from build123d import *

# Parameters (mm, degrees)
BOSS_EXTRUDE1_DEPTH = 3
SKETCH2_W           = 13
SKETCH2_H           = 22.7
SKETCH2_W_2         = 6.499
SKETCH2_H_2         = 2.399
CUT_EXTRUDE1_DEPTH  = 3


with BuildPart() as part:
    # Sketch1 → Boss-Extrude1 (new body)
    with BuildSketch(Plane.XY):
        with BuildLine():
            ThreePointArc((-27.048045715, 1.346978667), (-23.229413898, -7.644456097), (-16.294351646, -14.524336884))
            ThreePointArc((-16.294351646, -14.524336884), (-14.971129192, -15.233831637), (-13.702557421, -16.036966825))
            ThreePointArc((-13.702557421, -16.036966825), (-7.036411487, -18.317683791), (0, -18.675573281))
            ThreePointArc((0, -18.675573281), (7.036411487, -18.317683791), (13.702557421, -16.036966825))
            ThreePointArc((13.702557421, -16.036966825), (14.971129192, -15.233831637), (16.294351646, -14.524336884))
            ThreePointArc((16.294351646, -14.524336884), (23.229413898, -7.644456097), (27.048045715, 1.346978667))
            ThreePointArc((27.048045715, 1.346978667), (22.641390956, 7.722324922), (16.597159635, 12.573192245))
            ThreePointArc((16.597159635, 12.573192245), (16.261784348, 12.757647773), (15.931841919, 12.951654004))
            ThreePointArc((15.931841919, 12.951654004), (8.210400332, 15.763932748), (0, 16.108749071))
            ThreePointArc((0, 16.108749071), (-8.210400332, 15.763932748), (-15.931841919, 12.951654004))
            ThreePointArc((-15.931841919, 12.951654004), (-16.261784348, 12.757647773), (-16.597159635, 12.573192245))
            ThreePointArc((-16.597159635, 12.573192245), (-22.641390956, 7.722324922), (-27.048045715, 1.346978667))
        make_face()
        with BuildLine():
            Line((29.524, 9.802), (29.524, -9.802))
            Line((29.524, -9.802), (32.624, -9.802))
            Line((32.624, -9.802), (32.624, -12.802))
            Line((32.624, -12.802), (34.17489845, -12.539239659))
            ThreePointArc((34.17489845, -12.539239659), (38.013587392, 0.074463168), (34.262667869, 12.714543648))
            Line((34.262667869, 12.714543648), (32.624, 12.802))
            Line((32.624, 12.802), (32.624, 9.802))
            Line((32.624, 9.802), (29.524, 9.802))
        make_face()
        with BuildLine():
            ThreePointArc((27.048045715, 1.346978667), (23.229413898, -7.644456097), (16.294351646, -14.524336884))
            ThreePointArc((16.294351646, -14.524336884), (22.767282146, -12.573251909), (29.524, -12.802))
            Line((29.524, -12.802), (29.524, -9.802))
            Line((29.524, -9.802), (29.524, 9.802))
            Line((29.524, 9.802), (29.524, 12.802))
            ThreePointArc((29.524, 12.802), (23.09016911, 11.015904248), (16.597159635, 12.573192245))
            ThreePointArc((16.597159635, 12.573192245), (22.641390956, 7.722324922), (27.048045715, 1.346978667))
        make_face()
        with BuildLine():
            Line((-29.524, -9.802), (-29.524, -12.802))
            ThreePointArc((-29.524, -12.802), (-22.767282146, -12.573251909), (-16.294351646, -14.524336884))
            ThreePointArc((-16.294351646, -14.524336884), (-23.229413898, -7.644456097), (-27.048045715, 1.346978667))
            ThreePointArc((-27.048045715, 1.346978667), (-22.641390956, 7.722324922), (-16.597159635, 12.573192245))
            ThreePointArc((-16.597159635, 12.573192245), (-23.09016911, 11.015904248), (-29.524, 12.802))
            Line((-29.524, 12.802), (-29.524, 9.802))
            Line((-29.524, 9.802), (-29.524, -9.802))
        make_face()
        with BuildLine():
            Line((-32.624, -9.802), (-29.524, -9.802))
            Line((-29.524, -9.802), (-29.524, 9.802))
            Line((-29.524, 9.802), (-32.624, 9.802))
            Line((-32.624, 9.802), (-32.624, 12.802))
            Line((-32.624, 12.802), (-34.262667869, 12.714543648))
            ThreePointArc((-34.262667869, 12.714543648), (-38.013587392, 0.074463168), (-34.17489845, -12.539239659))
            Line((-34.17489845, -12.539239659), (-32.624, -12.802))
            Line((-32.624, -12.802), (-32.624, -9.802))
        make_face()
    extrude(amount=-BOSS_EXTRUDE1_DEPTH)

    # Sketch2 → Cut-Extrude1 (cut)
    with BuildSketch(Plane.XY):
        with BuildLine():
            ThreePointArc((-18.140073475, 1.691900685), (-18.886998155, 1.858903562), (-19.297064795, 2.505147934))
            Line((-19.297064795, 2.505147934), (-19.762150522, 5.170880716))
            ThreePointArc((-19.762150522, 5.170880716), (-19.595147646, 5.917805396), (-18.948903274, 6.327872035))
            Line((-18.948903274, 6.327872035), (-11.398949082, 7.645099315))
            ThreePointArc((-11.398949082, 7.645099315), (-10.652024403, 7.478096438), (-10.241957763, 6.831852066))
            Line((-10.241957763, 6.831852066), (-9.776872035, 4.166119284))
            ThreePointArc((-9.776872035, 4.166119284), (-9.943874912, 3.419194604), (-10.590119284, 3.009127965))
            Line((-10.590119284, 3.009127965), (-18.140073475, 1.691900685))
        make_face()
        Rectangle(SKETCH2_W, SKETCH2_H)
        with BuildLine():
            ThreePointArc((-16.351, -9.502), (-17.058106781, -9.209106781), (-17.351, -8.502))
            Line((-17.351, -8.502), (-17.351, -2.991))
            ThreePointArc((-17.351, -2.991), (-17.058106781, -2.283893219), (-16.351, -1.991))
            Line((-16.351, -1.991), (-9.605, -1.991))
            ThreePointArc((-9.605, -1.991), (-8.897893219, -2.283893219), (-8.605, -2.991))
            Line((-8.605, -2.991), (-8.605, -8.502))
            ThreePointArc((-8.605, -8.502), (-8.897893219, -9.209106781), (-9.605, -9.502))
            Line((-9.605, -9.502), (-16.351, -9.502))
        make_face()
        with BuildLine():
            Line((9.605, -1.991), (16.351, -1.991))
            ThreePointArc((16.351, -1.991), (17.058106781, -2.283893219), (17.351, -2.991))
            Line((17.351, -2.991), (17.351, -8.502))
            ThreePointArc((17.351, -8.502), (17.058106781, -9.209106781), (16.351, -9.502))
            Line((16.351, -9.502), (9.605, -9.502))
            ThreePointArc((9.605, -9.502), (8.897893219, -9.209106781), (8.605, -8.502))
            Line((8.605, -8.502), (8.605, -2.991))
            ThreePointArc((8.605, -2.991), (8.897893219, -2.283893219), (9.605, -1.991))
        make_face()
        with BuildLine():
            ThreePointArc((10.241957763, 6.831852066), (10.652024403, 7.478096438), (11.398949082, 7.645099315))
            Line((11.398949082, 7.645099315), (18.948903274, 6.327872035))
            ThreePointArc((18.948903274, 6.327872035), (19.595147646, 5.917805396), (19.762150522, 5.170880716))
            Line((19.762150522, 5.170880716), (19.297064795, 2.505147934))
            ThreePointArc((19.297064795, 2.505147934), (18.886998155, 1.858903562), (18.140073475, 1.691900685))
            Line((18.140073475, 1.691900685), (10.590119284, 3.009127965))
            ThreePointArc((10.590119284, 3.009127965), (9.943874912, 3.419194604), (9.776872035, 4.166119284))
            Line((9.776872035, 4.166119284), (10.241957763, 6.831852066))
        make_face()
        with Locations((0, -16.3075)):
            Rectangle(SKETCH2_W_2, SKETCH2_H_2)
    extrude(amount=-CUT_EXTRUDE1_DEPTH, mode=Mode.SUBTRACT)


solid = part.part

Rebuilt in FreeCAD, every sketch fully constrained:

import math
import FreeCAD as App
import Part
import Sketcher

doc = App.newDocument("Part")
body = doc.addObject("PartDesign::Body", "Body")

sketch1 = doc.addObject("Sketcher::SketchObject", "Sketch")
body.addObject(sketch1)
sketch1.AttachmentSupport = (doc.XY_Plane, [""])
sketch1.MapMode = "FlatFace"
sketch1.addGeometry([
    Part.ArcOfCircle(Part.Circle(App.Vector(-25.5, -33.2, 0), App.Vector(0, 0, 1), 20.8), math.radians(55.59), math.radians(63.87)),
    Part.ArcOfCircle(Part.Circle(App.Vector(-2.2, 6.6, 0), App.Vector(0, 0, 1), 25.3), math.radians(-117), math.radians(-85)),
    Part.ArcOfCircle(Part.Circle(App.Vector(2.2, 6.6, 0), App.Vector(0, 0, 1), 25.3), math.radians(-95), math.radians(-63)),
    Part.ArcOfCircle(Part.Circle(App.Vector(25.5, -33.2, 0), App.Vector(0, 0, 1), 20.8), math.radians(116.13), math.radians(124.41)),
    Part.ArcOfCircle(Part.Circle(App.Vector(25.5, -33.2, 0), App.Vector(0, 0, 1), 20.8), math.radians(79), math.radians(116)),
    Part.LineSegment(App.Vector(29.5, -12.8, 0), App.Vector(29.5, -9.8, 0)),
    Part.LineSegment(App.Vector(29.5, -9.8, 0), App.Vector(32.6, -9.8, 0)),
    Part.LineSegment(App.Vector(32.6, -9.8, 0), App.Vector(32.6, -12.8, 0)),
    Part.LineSegment(App.Vector(32.6, -12.8, 0), App.Vector(34.2, -12.5, 0)),
    Part.ArcOfCircle(Part.Circle(App.Vector(15.1, 0.2, 0), App.Vector(0, 0, 1), 22.9), math.radians(-34), math.radians(33)),
    Part.LineSegment(App.Vector(34.3, 12.7, 0), App.Vector(32.6, 12.8, 0)),
    Part.LineSegment(App.Vector(32.6, 12.8, 0), App.Vector(32.6, 9.8, 0)),
    Part.LineSegment(App.Vector(32.6, 9.8, 0), App.Vector(29.5, 9.8, 0)),
    Part.LineSegment(App.Vector(29.5, 9.8, 0), App.Vector(29.5, 12.8, 0)),
    Part.ArcOfCircle(Part.Circle(App.Vector(22.9, 24.3, 0), App.Vector(0, 0, 1), 13.3), math.radians(-118), math.radians(-60)),
    Part.ArcOfCircle(Part.Circle(App.Vector(22.9, 24.3, 0), App.Vector(0, 0, 1), 13.3), math.radians(-121.28), math.radians(-117.99)),
    Part.ArcOfCircle(Part.Circle(App.Vector(3, -10.6, 0), App.Vector(0, 0, 1), 26.8), math.radians(61), math.radians(96)),
    Part.ArcOfCircle(Part.Circle(App.Vector(-3, -10.6, 0), App.Vector(0, 0, 1), 26.8), math.radians(84), math.radians(119)),
    Part.ArcOfCircle(Part.Circle(App.Vector(-22.9, 24.3, 0), App.Vector(0, 0, 1), 13.3), math.radians(-62.01), math.radians(-58.72)),
    Part.ArcOfCircle(Part.Circle(App.Vector(-22.9, 24.3, 0), App.Vector(0, 0, 1), 13.3), math.radians(-120), math.radians(-62)),
    Part.LineSegment(App.Vector(-29.5, 12.8, 0), App.Vector(-29.5, 9.8, 0)),
    Part.LineSegment(App.Vector(-29.5, 9.8, 0), App.Vector(-32.6, 9.8, 0)),
    Part.LineSegment(App.Vector(-32.6, 9.8, 0), App.Vector(-32.6, 12.8, 0)),
    Part.LineSegment(App.Vector(-32.6, 12.8, 0), App.Vector(-34.3, 12.7, 0)),
    Part.ArcOfCircle(Part.Circle(App.Vector(-15.1, 0.2, 0), App.Vector(0, 0, 1), 22.9), math.radians(147), math.radians(214)),
    Part.LineSegment(App.Vector(-34.2, -12.5, 0), App.Vector(-32.6, -12.8, 0)),
    Part.LineSegment(App.Vector(-32.6, -12.8, 0), App.Vector(-32.6, -9.8, 0)),
    Part.LineSegment(App.Vector(-32.6, -9.8, 0), App.Vector(-29.5, -9.8, 0)),
    Part.LineSegment(App.Vector(-29.5, -9.8, 0), App.Vector(-29.5, -12.8, 0)),
    Part.ArcOfCircle(Part.Circle(App.Vector(-25.5, -33.2, 0), App.Vector(0, 0, 1), 20.8), math.radians(64), math.radians(101)),
], False)
sketch1.addConstraint([
    Sketcher.Constraint("Coincident", 0, 1, 1, 1),
    Sketcher.Constraint("Coincident", 1, 2, 2, 1),
    Sketcher.Constraint("Coincident", 2, 2, 3, 2),
    Sketcher.Constraint("Tangent", 3, 1, 4, 2),
    Sketcher.Constraint("Coincident", 4, 1, 5, 1),
    Sketcher.Constraint("Coincident", 5, 2, 6, 1),
    Sketcher.Constraint("Coincident", 6, 2, 7, 1),
    Sketcher.Constraint("Coincident", 7, 2, 8, 1),
    Sketcher.Constraint("Coincident", 8, 2, 9, 1),
    Sketcher.Constraint("Coincident", 9, 2, 10, 1),
    Sketcher.Constraint("Coincident", 10, 2, 11, 1),
    Sketcher.Constraint("Coincident", 11, 2, 12, 1),
    Sketcher.Constraint("Coincident", 12, 2, 13, 1),
    Sketcher.Constraint("Coincident", 13, 2, 14, 2),
    Sketcher.Constraint("Tangent", 14, 1, 15, 2),
    Sketcher.Constraint("Coincident", 15, 1, 16, 1),
    Sketcher.Constraint("Coincident", 16, 2, 17, 1),
    Sketcher.Constraint("Coincident", 17, 2, 18, 2),
    Sketcher.Constraint("Tangent", 18, 1, 19, 2),
    Sketcher.Constraint("Coincident", 19, 1, 20, 1),
    Sketcher.Constraint("Coincident", 20, 2, 21, 1),
    Sketcher.Constraint("Coincident", 21, 2, 22, 1),
    Sketcher.Constraint("Coincident", 22, 2, 23, 1),
    Sketcher.Constraint("Coincident", 23, 2, 24, 1),
    Sketcher.Constraint("Coincident", 24, 2, 25, 1),
    Sketcher.Constraint("Coincident", 25, 2, 26, 1),
    Sketcher.Constraint("Coincident", 26, 2, 27, 1),
    Sketcher.Constraint("Coincident", 27, 2, 28, 1),
    Sketcher.Constraint("Coincident", 28, 2, 29, 2),
    Sketcher.Constraint("Tangent", 29, 1, 0, 2),
    Sketcher.Constraint("Vertical", 5),
    Sketcher.Constraint("Horizontal", 6),
    Sketcher.Constraint("Vertical", 7),
    Sketcher.Constraint("Vertical", 11),
    Sketcher.Constraint("Horizontal", 12),
    Sketcher.Constraint("Vertical", 13),
    Sketcher.Constraint("Vertical", 20),
    Sketcher.Constraint("Horizontal", 21),
    Sketcher.Constraint("Vertical", 22),
    Sketcher.Constraint("Vertical", 26),
    Sketcher.Constraint("Horizontal", 27),
    Sketcher.Constraint("Vertical", 28),
    Sketcher.Constraint("Equal", 1, 2),
    Sketcher.Constraint("Equal", 0, 3),
    Sketcher.Constraint("Equal", 3, 4),
    Sketcher.Constraint("Equal", 14, 15),
    Sketcher.Constraint("Equal", 16, 17),
    Sketcher.Constraint("Equal", 15, 18),
    Sketcher.Constraint("Equal", 18, 19),
    Sketcher.Constraint("Equal", 9, 24),
    Sketcher.Constraint("Equal", 4, 29),
    Sketcher.Constraint("Symmetric", 4, 1, 19, 1, -1, 1),
    Sketcher.Constraint("Symmetric", 6, 2, 21, 2, -1, 1),
    Sketcher.Constraint("Symmetric", 10, 2, 25, 2, -1, 1),
    Sketcher.Constraint("Symmetric", 12, 2, 27, 2, -1, 1),
    Sketcher.Constraint("Symmetric", 1, 3, 2, 3, -2),
    Sketcher.Constraint("Symmetric", 0, 3, 3, 3, -2),
    Sketcher.Constraint("Symmetric", 16, 3, 17, 3, -2),
    Sketcher.Constraint("Symmetric", 14, 3, 18, 3, -2),
    Sketcher.Constraint("Symmetric", 9, 3, 24, 3, -2),
    Sketcher.Constraint("Symmetric", 12, 2, 20, 2, -2),
    Sketcher.Constraint("Symmetric", 10, 2, 22, 2, -2),
    Sketcher.Constraint("Horizontal", 4, 1, 7, 2),
    Sketcher.Constraint("Horizontal", 10, 2, 13, 2),
    Sketcher.Constraint("Horizontal", 14, 1, 18, 1),
    Sketcher.Constraint("Horizontal", 9, 2, 23, 2),
    Sketcher.Constraint("Horizontal", 8, 2, 24, 2),
    Sketcher.Constraint("Horizontal", 3, 1, 29, 1),
    Sketcher.Constraint("DistanceY", 5, 1, 5, 2, 3.0),
    Sketcher.Constraint("Radius", 1, 25.35),
    Sketcher.Constraint("DistanceX", 6, 1, 6, 2, 3.1),
    Sketcher.Constraint("Radius", 0, 20.792),
    Sketcher.Constraint("Radius", 9, 22.905),
    Sketcher.Constraint("Radius", 14, 13.333),
    Sketcher.Constraint("Radius", 16, 26.846),
    Sketcher.Constraint("DistanceY", 16, 3, -1, 1, 10.57),
    Sketcher.Constraint("Distance", 8, 1.573),
    Sketcher.Constraint("Distance", 10, 1.641),
    Sketcher.Constraint("DistanceX", 1, 3, -1, 1, 2.243),
    Sketcher.Constraint("DistanceY", -1, 1, 1, 3, 6.575),
    Sketcher.Constraint("DistanceX", -1, 1, 16, 3, 2.992),
    Sketcher.Constraint("DistanceX", -1, 1, 4, 1, 29.524),
    Sketcher.Constraint("DistanceY", 4, 1, -1, 1, 12.802),
    Sketcher.Constraint("DistanceX", -1, 1, 8, 2, 34.174898),
    Sketcher.Constraint("DistanceY", 0, 3, -1, 1, 33.191261),
    Sketcher.Constraint("DistanceY", -1, 1, 9, 3, 0.154069),
    Sketcher.Constraint("DistanceX", -1, 1, 14, 3, 22.854209),
    Sketcher.Constraint("DistanceX", -1, 1, 3, 1, 16.294352),
    Sketcher.Constraint("DistanceX", -1, 1, 14, 1, 16.59716),
])
pad1 = doc.addObject("PartDesign::Pad", "Pad")
body.addObject(pad1)
pad1.Profile = sketch1
pad1.Length = 3
pad1.Reversed = True

sketch2 = doc.addObject("Sketcher::SketchObject", "Sketch001")
body.addObject(sketch2)
sketch2.AttachmentSupport = (doc.XY_Plane, [""])
sketch2.MapMode = "FlatFace"
sketch2.addGeometry([
    Part.ArcOfCircle(Part.Circle(App.Vector(-18.3, 2.7, 0), App.Vector(0, 0, 1), 1), math.radians(-170), math.radians(-80)),
    Part.LineSegment(App.Vector(-18.1, 1.7, 0), App.Vector(-10.6, 3, 0)),
    Part.ArcOfCircle(Part.Circle(App.Vector(-10.8, 4, 0), App.Vector(0, 0, 1), 1), math.radians(-80), math.radians(10)),
    Part.LineSegment(App.Vector(-9.8, 4.2, 0), App.Vector(-10.2, 6.8, 0)),
    Part.ArcOfCircle(Part.Circle(App.Vector(-11.2, 6.7, 0), App.Vector(0, 0, 1), 1), math.radians(10), math.radians(100)),
    Part.LineSegment(App.Vector(-11.4, 7.6, 0), App.Vector(-18.9, 6.3, 0)),
    Part.ArcOfCircle(Part.Circle(App.Vector(-18.8, 5.3, 0), App.Vector(0, 0, 1), 1), math.radians(100), math.radians(190)),
    Part.LineSegment(App.Vector(-19.8, 5.2, 0), App.Vector(-19.3, 2.5, 0)),
    Part.LineSegment(App.Vector(-6.5, 11.3, 0), App.Vector(-6.5, -11.3, 0)),
    Part.LineSegment(App.Vector(-6.5, -11.3, 0), App.Vector(6.5, -11.3, 0)),
    Part.LineSegment(App.Vector(6.5, -11.3, 0), App.Vector(6.5, 11.3, 0)),
    Part.LineSegment(App.Vector(6.5, 11.3, 0), App.Vector(-6.5, 11.3, 0)),
    Part.ArcOfCircle(Part.Circle(App.Vector(-16.4, -8.5, 0), App.Vector(0, 0, 1), 1), math.radians(-180), math.radians(-90)),
    Part.LineSegment(App.Vector(-16.4, -9.5, 0), App.Vector(-9.6, -9.5, 0)),
    Part.ArcOfCircle(Part.Circle(App.Vector(-9.6, -8.5, 0), App.Vector(0, 0, 1), 1), math.radians(-90), math.radians(0)),
    Part.LineSegment(App.Vector(-8.6, -8.5, 0), App.Vector(-8.6, -3, 0)),
    Part.ArcOfCircle(Part.Circle(App.Vector(-9.6, -3, 0), App.Vector(0, 0, 1), 1), math.radians(0), math.radians(90)),
    Part.LineSegment(App.Vector(-9.6, -2, 0), App.Vector(-16.4, -2, 0)),
    Part.ArcOfCircle(Part.Circle(App.Vector(-16.4, -3, 0), App.Vector(0, 0, 1), 1), math.radians(90), math.radians(180)),
    Part.LineSegment(App.Vector(-17.4, -3, 0), App.Vector(-17.4, -8.5, 0)),
    Part.LineSegment(App.Vector(16.4, -2, 0), App.Vector(9.6, -2, 0)),
    Part.ArcOfCircle(Part.Circle(App.Vector(9.6, -3, 0), App.Vector(0, 0, 1), 1), math.radians(90), math.radians(180)),
    Part.LineSegment(App.Vector(8.6, -3, 0), App.Vector(8.6, -8.5, 0)),
    Part.ArcOfCircle(Part.Circle(App.Vector(9.6, -8.5, 0), App.Vector(0, 0, 1), 1), math.radians(-180), math.radians(-90)),
    Part.LineSegment(App.Vector(9.6, -9.5, 0), App.Vector(16.4, -9.5, 0)),
    Part.ArcOfCircle(Part.Circle(App.Vector(16.4, -8.5, 0), App.Vector(0, 0, 1), 1), math.radians(-90), math.radians(0)),
    Part.LineSegment(App.Vector(17.4, -8.5, 0), App.Vector(17.4, -3, 0)),
    Part.ArcOfCircle(Part.Circle(App.Vector(16.4, -3, 0), App.Vector(0, 0, 1), 1), math.radians(0), math.radians(90)),
    Part.ArcOfCircle(Part.Circle(App.Vector(11.2, 6.7, 0), App.Vector(0, 0, 1), 1), math.radians(80), math.radians(170)),
    Part.LineSegment(App.Vector(10.2, 6.8, 0), App.Vector(9.8, 4.2, 0)),
    Part.ArcOfCircle(Part.Circle(App.Vector(10.8, 4, 0), App.Vector(0, 0, 1), 1), math.radians(170), math.radians(260)),
    Part.LineSegment(App.Vector(10.6, 3, 0), App.Vector(18.1, 1.7, 0)),
    Part.ArcOfCircle(Part.Circle(App.Vector(18.3, 2.7, 0), App.Vector(0, 0, 1), 1), math.radians(-100), math.radians(-10)),
    Part.LineSegment(App.Vector(19.3, 2.5, 0), App.Vector(19.8, 5.2, 0)),
    Part.ArcOfCircle(Part.Circle(App.Vector(18.8, 5.3, 0), App.Vector(0, 0, 1), 1), math.radians(-10), math.radians(80)),
    Part.LineSegment(App.Vector(18.9, 6.3, 0), App.Vector(11.4, 7.6, 0)),
    Part.LineSegment(App.Vector(-3.2, -15.1, 0), App.Vector(-3.2, -17.5, 0)),
    Part.LineSegment(App.Vector(-3.2, -17.5, 0), App.Vector(3.2, -17.5, 0)),
    Part.LineSegment(App.Vector(3.2, -17.5, 0), App.Vector(3.2, -15.1, 0)),
    Part.LineSegment(App.Vector(3.2, -15.1, 0), App.Vector(-3.2, -15.1, 0)),
], False)
sketch2.addConstraint([
    Sketcher.Constraint("Tangent", 0, 2, 1, 1),
    Sketcher.Constraint("Tangent", 1, 2, 2, 1),
    Sketcher.Constraint("Tangent", 2, 2, 3, 1),
    Sketcher.Constraint("Tangent", 3, 2, 4, 1),
    Sketcher.Constraint("Tangent", 4, 2, 5, 1),
    Sketcher.Constraint("Tangent", 5, 2, 6, 1),
    Sketcher.Constraint("Tangent", 6, 2, 7, 1),
    Sketcher.Constraint("Tangent", 7, 2, 0, 1),
    Sketcher.Constraint("Coincident", 8, 2, 9, 1),
    Sketcher.Constraint("Coincident", 9, 2, 10, 1),
    Sketcher.Constraint("Coincident", 10, 2, 11, 1),
    Sketcher.Constraint("Coincident", 11, 2, 8, 1),
    Sketcher.Constraint("Tangent", 12, 2, 13, 1),
    Sketcher.Constraint("Tangent", 13, 2, 14, 1),
    Sketcher.Constraint("Tangent", 14, 2, 15, 1),
    Sketcher.Constraint("Tangent", 15, 2, 16, 1),
    Sketcher.Constraint("Tangent", 16, 2, 17, 1),
    Sketcher.Constraint("Tangent", 17, 2, 18, 1),
    Sketcher.Constraint("Tangent", 18, 2, 19, 1),
    Sketcher.Constraint("Tangent", 19, 2, 12, 1),
    Sketcher.Constraint("Tangent", 20, 2, 21, 1),
    Sketcher.Constraint("Tangent", 21, 2, 22, 1),
    Sketcher.Constraint("Tangent", 22, 2, 23, 1),
    Sketcher.Constraint("Tangent", 23, 2, 24, 1),
    Sketcher.Constraint("Tangent", 24, 2, 25, 1),
    Sketcher.Constraint("Tangent", 25, 2, 26, 1),
    Sketcher.Constraint("Tangent", 26, 2, 27, 1),
    Sketcher.Constraint("Tangent", 27, 2, 20, 1),
    Sketcher.Constraint("Tangent", 28, 2, 29, 1),
    Sketcher.Constraint("Tangent", 29, 2, 30, 1),
    Sketcher.Constraint("Tangent", 30, 2, 31, 1),
    Sketcher.Constraint("Tangent", 31, 2, 32, 1),
    Sketcher.Constraint("Tangent", 32, 2, 33, 1),
    Sketcher.Constraint("Tangent", 33, 2, 34, 1),
    Sketcher.Constraint("Tangent", 34, 2, 35, 1),
    Sketcher.Constraint("Tangent", 35, 2, 28, 1),
    Sketcher.Constraint("Coincident", 36, 2, 37, 1),
    Sketcher.Constraint("Coincident", 37, 2, 38, 1),
    Sketcher.Constraint("Coincident", 38, 2, 39, 1),
    Sketcher.Constraint("Coincident", 39, 2, 36, 1),
    Sketcher.Constraint("Vertical", 8),
    Sketcher.Constraint("Horizontal", 9),
    Sketcher.Constraint("Vertical", 10),
    Sketcher.Constraint("Horizontal", 11),
    Sketcher.Constraint("Horizontal", 13),
    Sketcher.Constraint("Vertical", 15),
    Sketcher.Constraint("Horizontal", 17),
    Sketcher.Constraint("Vertical", 19),
    Sketcher.Constraint("Horizontal", 20),
    Sketcher.Constraint("Vertical", 22),
    Sketcher.Constraint("Horizontal", 24),
    Sketcher.Constraint("Vertical", 26),
    Sketcher.Constraint("Vertical", 36),
    Sketcher.Constraint("Horizontal", 37),
    Sketcher.Constraint("Vertical", 38),
    Sketcher.Constraint("Horizontal", 39),
    Sketcher.Constraint("Equal", 0, 2),
    Sketcher.Constraint("Equal", 2, 4),
    Sketcher.Constraint("Equal", 4, 6),
    Sketcher.Constraint("Equal", 6, 12),
    Sketcher.Constraint("Equal", 12, 14),
    Sketcher.Constraint("Equal", 14, 16),
    Sketcher.Constraint("Equal", 16, 18),
    Sketcher.Constraint("Equal", 18, 21),
    Sketcher.Constraint("Equal", 21, 23),
    Sketcher.Constraint("Equal", 23, 25),
    Sketcher.Constraint("Equal", 25, 27),
    Sketcher.Constraint("Equal", 27, 28),
    Sketcher.Constraint("Equal", 28, 30),
    Sketcher.Constraint("Equal", 30, 32),
    Sketcher.Constraint("Equal", 32, 34),
    Sketcher.Constraint("Symmetric", 8, 2, 10, 2, -1, 1),
    Sketcher.Constraint("Symmetric", 16, 3, 21, 3, -2),
    Sketcher.Constraint("Symmetric", 12, 3, 25, 3, -2),
    Sketcher.Constraint("Symmetric", 4, 3, 28, 3, -2),
    Sketcher.Constraint("Symmetric", 2, 3, 30, 3, -2),
    Sketcher.Constraint("Symmetric", 0, 3, 32, 3, -2),
    Sketcher.Constraint("Symmetric", 6, 3, 34, 3, -2),
    Sketcher.Constraint("Perpendicular", 1, 3),
    Sketcher.Constraint("Perpendicular", 3, 5),
    Sketcher.Constraint("Perpendicular", 5, 7),
    Sketcher.Constraint("Radius", 0, 1.0),
    Sketcher.Constraint("DistanceX", 9, 1, 9, 2, 13.0),
    Sketcher.Constraint("DistanceY", 8, 2, 8, 1, 22.7),
    Sketcher.Constraint("DistanceX", 13, 1, 13, 2, 6.746),
    Sketcher.Constraint("DistanceX", 37, 1, 37, 2, 6.499),
    Sketcher.Constraint("DistanceY", 15, 1, 15, 2, 5.511),
    Sketcher.Constraint("DistanceY", 36, 2, 36, 1, 2.399),
    Sketcher.Constraint("DistanceX", 16, 3, 21, 3, 19.21),
    Sketcher.Constraint("Distance", 1, 7.664),
    Sketcher.Constraint("Distance", 3, 2.706),
    Sketcher.Constraint("DistanceY", 12, 3, -1, 1, 8.502),
    Sketcher.Constraint("DistanceY", 36, 2, -1, 1, 17.507),
    Sketcher.Constraint("DistanceY", -1, 1, 0, 2, 1.691901),
    Sketcher.Constraint("DistanceY", -1, 1, 4, 2, 7.645099),
    Sketcher.Constraint("DistanceX", 36, 2, -1, 1, 3.2495),
    Sketcher.Constraint("DistanceX", 2, 3, -1, 1, 10.761991),
])
pocket1 = doc.addObject("PartDesign::Pocket", "Pocket")
body.addObject(pocket1)
pocket1.Profile = sketch2
pocket1.Length = 3

doc.recompute()
